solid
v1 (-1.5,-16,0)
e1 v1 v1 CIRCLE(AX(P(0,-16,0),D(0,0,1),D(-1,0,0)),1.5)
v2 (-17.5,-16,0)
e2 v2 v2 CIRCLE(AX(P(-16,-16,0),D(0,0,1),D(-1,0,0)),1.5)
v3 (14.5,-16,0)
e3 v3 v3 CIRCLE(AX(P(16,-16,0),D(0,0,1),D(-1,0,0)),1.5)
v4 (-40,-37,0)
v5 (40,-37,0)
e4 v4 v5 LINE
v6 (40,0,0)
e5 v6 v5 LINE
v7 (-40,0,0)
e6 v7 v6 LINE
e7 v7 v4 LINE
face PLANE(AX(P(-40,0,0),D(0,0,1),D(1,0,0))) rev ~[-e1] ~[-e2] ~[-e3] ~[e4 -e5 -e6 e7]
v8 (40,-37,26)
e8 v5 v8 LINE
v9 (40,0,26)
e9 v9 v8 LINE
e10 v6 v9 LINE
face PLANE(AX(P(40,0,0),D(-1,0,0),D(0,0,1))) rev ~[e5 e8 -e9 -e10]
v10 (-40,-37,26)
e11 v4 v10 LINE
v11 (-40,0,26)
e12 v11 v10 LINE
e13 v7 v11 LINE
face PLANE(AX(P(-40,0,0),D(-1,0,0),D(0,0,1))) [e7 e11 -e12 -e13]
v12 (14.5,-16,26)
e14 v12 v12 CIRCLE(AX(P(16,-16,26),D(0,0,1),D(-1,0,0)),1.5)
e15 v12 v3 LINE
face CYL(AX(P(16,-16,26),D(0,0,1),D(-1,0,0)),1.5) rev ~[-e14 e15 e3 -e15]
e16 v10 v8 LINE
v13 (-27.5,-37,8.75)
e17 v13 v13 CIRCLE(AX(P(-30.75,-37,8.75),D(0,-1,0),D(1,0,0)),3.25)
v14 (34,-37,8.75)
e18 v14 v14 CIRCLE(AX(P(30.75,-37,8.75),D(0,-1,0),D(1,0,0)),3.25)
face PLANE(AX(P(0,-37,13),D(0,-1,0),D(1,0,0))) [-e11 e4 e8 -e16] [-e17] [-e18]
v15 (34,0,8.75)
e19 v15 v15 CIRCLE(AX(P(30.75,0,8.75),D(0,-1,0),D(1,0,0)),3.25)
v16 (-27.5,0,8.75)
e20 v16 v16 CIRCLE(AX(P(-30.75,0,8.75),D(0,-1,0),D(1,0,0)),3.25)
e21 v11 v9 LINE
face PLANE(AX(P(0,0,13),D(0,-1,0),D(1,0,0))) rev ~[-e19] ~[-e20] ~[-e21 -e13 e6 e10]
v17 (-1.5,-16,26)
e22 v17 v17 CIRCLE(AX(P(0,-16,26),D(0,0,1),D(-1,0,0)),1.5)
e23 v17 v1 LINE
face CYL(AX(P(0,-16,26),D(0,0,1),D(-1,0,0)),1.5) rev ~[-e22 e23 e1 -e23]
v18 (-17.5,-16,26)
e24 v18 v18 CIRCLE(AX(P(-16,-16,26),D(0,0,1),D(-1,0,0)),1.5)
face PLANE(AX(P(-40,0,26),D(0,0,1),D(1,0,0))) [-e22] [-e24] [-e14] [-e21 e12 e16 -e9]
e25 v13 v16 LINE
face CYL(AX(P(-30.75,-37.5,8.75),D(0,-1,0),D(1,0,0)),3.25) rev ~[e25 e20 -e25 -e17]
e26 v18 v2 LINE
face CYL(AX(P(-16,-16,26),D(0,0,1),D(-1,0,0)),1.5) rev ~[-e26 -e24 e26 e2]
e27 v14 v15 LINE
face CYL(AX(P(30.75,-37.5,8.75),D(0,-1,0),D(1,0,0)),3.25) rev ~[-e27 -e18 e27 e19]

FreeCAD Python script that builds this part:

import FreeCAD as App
import Part
import Sketcher


def add_polygon(sketch, points):
    """Adds a closed chain of lines whose ends are joined by coincident constraints."""
    first, n = sketch.GeometryCount, len(points)
    for a, b in zip(points, points[1:] + points[:1]):
        sketch.addGeometry(Part.LineSegment(App.Vector(*a, 0), App.Vector(*b, 0)), False)
    for i in range(n):
        sketch.addConstraint(Sketcher.Constraint("Coincident", first + i, 2, first + (i + 1) % n, 1))

doc = App.newDocument("Part")
body = doc.addObject("PartDesign::Body", "Body")

sketch1 = body.newObject("Sketcher::SketchObject", "Sketch")
sketch1.AttachmentSupport = (doc.getObject("XZ_Plane"), [""])
sketch1.MapMode = "FlatFace"
add_polygon(sketch1, [(-40, 26), (-40, 0), (40, 0), (40, 26)])
sketch1.addConstraint([
    Sketcher.Constraint("Vertical", 0),
    Sketcher.Constraint("Horizontal", 1),
    Sketcher.Constraint("Vertical", 2),
    Sketcher.Constraint("Horizontal", 3),
    Sketcher.Constraint("Symmetric", 0, 2, 1, 2, -1, 1),
    Sketcher.Constraint("DistanceX", 1, 1, 1, 2, 80.0),
    Sketcher.Constraint("DistanceY", 0, 2, 0, 1, 26.0),
])
pad1 = body.newObject("PartDesign::Pad", "Pad")
pad1.Profile = sketch1
pad1.Length = 37

sketch2 = body.newObject("Sketcher::SketchObject", "Sketch001")
sketch2.AttachmentSupport = (doc.getObject("XZ_Plane"), [""])
sketch2.MapMode = "FlatFace"
sketch2.AttachmentOffset = App.Placement(App.Vector(0, 0, 37.5), App.Rotation())
sketch2.addGeometry([
    Part.Circle(App.Vector(-30.8, 8.8, 0), App.Vector(0, 0, 1), 3.2),
    Part.Circle(App.Vector(30.8, 8.8, 0), App.Vector(0, 0, 1), 3.2),
], False)
sketch2.addConstraint([
    Sketcher.Constraint("Equal", 0, 1),
    Sketcher.Constraint("Symmetric", 0, 3, 1, 3, -2),
    Sketcher.Constraint("Diameter", 0, 6.5),
    Sketcher.Constraint("DistanceX", 0, 3, 1, 3, 61.5),
    Sketcher.Constraint("DistanceY", -1, 1, 0, 3, 8.75),
])
pocket1 = body.newObject("PartDesign::Pocket", "Pocket")
pocket1.Profile = sketch2
pocket1.Type = "ThroughAll"

sketch3 = body.newObject("Sketcher::SketchObject", "Sketch002")
sketch3.AttachmentSupport = (doc.getObject("XY_Plane"), [""])
sketch3.MapMode = "FlatFace"
sketch3.AttachmentOffset = App.Placement(App.Vector(0, 0, 26), App.Rotation())
sketch3.addGeometry([
    Part.Circle(App.Vector(16, -16, 0), App.Vector(0, 0, 1), 1.5),
    Part.Circle(App.Vector(-16, -16, 0), App.Vector(0, 0, 1), 1.5),
    Part.Circle(App.Vector(0, -16, 0), App.Vector(0, 0, 1), 1.5),
], False)
sketch3.addConstraint([
    Sketcher.Constraint("Equal", 0, 1),
    Sketcher.Constraint("Equal", 1, 2),
    Sketcher.Constraint("Symmetric", 0, 3, 1, 3, -2),
    Sketcher.Constraint("PointOnObject", 2, 3, -2),
    Sketcher.Constraint("Horizontal", 1, 3, 2, 3),
    Sketcher.Constraint("Diameter", 0, 3.0),
    Sketcher.Constraint("DistanceX", -1, 1, 0, 3, 16.0),
    Sketcher.Constraint("DistanceY", 0, 3, -1, 1, 16.0),
])
pocket2 = body.newObject("PartDesign::Pocket", "Pocket001")
pocket2.Profile = sketch3
pocket2.Type = "ThroughAll"

doc.recompute()
